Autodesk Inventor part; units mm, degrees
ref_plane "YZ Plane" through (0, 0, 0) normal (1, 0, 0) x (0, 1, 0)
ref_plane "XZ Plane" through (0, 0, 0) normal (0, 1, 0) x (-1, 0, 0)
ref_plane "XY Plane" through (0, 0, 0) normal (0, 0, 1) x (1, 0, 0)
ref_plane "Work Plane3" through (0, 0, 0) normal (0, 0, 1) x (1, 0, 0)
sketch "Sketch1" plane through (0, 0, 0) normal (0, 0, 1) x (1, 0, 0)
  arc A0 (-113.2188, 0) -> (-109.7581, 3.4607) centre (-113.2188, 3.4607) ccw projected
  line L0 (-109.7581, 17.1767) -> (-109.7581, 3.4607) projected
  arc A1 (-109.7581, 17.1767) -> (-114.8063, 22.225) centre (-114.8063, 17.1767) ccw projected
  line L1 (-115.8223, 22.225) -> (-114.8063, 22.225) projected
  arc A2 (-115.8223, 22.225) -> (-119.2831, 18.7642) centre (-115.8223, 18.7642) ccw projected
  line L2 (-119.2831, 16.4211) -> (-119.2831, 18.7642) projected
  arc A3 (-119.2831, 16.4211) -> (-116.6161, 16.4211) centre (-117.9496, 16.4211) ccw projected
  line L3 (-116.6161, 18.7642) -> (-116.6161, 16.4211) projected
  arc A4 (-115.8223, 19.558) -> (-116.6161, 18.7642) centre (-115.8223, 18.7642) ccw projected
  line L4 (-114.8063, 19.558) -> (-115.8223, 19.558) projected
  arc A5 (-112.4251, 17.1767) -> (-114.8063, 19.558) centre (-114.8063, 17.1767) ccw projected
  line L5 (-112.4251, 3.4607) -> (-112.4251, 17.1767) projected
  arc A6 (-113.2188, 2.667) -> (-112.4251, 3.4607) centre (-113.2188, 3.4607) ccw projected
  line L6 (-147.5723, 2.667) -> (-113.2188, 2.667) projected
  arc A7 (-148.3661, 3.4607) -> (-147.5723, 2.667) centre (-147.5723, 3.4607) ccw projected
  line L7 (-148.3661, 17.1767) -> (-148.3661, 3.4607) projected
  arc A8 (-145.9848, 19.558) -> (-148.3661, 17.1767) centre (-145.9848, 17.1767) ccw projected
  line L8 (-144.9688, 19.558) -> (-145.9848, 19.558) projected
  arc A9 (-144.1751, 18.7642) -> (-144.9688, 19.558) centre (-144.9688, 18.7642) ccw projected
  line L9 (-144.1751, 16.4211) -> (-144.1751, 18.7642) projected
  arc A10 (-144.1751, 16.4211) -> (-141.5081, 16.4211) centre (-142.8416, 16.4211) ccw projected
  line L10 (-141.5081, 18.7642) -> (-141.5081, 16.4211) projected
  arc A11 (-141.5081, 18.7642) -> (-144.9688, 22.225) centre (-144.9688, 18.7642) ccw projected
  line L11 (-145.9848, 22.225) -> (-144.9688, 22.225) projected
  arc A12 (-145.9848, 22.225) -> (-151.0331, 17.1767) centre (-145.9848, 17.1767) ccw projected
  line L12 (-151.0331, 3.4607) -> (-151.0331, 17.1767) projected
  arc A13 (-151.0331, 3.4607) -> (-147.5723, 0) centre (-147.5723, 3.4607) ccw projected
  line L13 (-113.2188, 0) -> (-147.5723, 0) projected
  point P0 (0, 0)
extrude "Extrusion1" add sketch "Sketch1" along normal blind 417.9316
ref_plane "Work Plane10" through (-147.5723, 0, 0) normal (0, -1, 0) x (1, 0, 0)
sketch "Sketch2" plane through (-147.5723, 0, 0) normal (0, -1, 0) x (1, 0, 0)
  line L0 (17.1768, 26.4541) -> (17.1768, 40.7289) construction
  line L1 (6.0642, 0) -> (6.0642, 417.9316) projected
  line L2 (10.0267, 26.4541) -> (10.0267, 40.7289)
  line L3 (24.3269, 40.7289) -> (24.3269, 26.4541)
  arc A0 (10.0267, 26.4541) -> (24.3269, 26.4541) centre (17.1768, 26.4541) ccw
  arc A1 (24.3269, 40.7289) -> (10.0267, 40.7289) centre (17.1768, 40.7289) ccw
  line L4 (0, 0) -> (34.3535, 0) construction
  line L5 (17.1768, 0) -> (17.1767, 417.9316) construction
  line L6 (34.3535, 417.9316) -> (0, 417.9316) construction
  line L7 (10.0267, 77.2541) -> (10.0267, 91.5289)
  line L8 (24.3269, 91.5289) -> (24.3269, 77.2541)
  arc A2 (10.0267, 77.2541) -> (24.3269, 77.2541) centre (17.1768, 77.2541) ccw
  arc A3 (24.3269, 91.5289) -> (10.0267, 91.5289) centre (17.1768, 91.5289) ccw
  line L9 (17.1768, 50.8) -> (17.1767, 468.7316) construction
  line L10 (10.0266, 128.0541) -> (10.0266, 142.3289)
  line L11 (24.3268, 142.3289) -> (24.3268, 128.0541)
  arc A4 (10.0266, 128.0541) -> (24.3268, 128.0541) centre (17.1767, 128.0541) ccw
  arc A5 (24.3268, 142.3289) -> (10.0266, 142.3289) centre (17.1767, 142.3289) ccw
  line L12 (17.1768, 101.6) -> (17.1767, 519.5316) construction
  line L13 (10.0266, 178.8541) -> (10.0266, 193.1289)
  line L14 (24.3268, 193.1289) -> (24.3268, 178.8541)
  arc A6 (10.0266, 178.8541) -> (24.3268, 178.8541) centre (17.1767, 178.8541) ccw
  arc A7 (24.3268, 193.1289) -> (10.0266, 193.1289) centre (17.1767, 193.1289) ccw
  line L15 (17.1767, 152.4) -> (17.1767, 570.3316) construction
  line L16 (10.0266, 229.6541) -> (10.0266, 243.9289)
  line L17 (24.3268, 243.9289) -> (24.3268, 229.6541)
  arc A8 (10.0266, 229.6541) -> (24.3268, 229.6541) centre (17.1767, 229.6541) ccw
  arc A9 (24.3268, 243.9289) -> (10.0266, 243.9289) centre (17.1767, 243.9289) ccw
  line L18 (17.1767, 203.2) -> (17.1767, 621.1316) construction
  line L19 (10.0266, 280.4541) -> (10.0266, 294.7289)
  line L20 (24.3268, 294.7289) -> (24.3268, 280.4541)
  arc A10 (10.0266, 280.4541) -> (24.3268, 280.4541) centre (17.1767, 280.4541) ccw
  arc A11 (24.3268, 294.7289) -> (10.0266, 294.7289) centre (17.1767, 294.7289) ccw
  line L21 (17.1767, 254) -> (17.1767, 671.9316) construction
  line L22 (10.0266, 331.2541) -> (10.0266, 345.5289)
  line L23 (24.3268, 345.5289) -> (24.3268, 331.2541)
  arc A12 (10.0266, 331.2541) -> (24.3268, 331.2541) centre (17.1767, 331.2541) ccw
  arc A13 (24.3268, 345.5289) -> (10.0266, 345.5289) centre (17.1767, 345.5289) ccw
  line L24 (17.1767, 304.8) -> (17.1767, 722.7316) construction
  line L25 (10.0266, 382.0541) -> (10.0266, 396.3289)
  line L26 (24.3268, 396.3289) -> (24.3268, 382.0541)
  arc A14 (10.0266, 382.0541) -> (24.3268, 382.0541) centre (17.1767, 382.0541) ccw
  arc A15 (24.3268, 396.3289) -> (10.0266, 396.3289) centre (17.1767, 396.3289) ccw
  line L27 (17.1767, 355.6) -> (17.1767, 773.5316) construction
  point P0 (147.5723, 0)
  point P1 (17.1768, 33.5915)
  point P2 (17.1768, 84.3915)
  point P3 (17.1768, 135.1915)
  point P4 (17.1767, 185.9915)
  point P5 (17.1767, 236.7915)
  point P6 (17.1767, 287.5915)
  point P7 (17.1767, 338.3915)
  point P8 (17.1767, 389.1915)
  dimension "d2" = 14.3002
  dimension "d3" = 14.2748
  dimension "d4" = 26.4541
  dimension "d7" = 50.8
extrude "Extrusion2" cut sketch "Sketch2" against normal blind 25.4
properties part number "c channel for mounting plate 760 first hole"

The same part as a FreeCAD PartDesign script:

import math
import FreeCAD as App
import Part
import Sketcher
from FreeCAD import Vector
Q = App.Units.Quantity

doc = App.newDocument("Part")
params = doc.addObject("Spreadsheet::Sheet", "Params")
for row, (alias, value) in enumerate([
    ("sketch1_radius", "0.031252 in"),
    ("sketch1_radius2", "0.093748 in"),
    ("sketch1_width", "0.04 in"),
    ("sketch1_height", "0.54 in"),
    ("pad1_length", "16.454 in"),
    ("sketch2_height", "0.562 in"),
    ("pocket1_length", "1 in"),
], start=1):
    params.set(f"A{row}", alias)
    params.set(f"B{row}", "=" + value)
    params.setAlias(f"B{row}", alias)

body = doc.addObject("PartDesign::Body", "Body")

# Sketch on XY plane
sketch1 = body.newObject("Sketcher::SketchObject", "Sketch")
sketch1.AttachmentSupport = (doc.getObject("XY_Plane"), [""])
sketch1.MapMode = "FlatFace"
sketch1.addGeometry([
    Part.LineSegment(Vector(-147.5723, 0, 0), Vector(-113.2188, 0, 0)),  # 0
    Part.ArcOfCircle(Part.Circle(Vector(-113.2188, 3.4607, 0), Vector(0, 0, 1), 3.4607), math.radians(-90), math.radians(0)),  # 1
    Part.LineSegment(Vector(-109.7581, 3.4607, 0), Vector(-109.7581, 17.1767, 0)),  # 2
    Part.ArcOfCircle(Part.Circle(Vector(-114.8063, 17.1767, 0), Vector(0, 0, 1), 5.0482), math.radians(0), math.radians(90)),  # 3
    Part.LineSegment(Vector(-114.8063, 22.225, 0), Vector(-115.8223, 22.225, 0)),  # 4
    Part.ArcOfCircle(Part.Circle(Vector(-115.8223, 18.7642, 0), Vector(0, 0, 1), 3.4608), math.radians(90), math.radians(180)),  # 5
    Part.LineSegment(Vector(-119.2831, 18.7642, 0), Vector(-119.2831, 16.4211, 0)),  # 6
    Part.ArcOfCircle(Part.Circle(Vector(-117.9496, 16.4211, 0), Vector(0, 0, 1), 1.3335), math.radians(180), math.radians(360)),  # 7
    Part.LineSegment(Vector(-116.6161, 16.4211, 0), Vector(-116.6161, 18.7642, 0)),  # 8
    Part.ArcOfCircle(Part.Circle(Vector(-115.8223, 18.7642, 0), Vector(0, 0, 1), 0.7938), math.radians(90), math.radians(180)),  # 9
    Part.LineSegment(Vector(-115.8223, 19.558, 0), Vector(-114.8063, 19.558, 0)),  # 10
    Part.ArcOfCircle(Part.Circle(Vector(-114.8063, 17.1767, 0), Vector(0, 0, 1), 2.3812), math.radians(0), math.radians(90)),  # 11
    Part.LineSegment(Vector(-112.4251, 17.1767, 0), Vector(-112.4251, 3.4607, 0)),  # 12
    Part.ArcOfCircle(Part.Circle(Vector(-113.2188, 3.4607, 0), Vector(0, 0, 1), 0.7937), math.radians(-90), math.radians(0)),  # 13
    Part.LineSegment(Vector(-113.2188, 2.667, 0), Vector(-147.5723, 2.667, 0)),  # 14
    Part.ArcOfCircle(Part.Circle(Vector(-147.5723, 3.4607, 0), Vector(0, 0, 1), 0.7938), math.radians(180), math.radians(270)),  # 15
    Part.LineSegment(Vector(-148.3661, 3.4607, 0), Vector(-148.3661, 17.1767, 0)),  # 16
    Part.ArcOfCircle(Part.Circle(Vector(-145.9848, 17.1767, 0), Vector(0, 0, 1), 2.3813), math.radians(90), math.radians(180)),  # 17
    Part.LineSegment(Vector(-145.9848, 19.558, 0), Vector(-144.9688, 19.558, 0)),  # 18
    Part.ArcOfCircle(Part.Circle(Vector(-144.9688, 18.7642, 0), Vector(0, 0, 1), 0.7937), math.radians(0), math.radians(90)),  # 19
    Part.LineSegment(Vector(-144.1751, 18.7642, 0), Vector(-144.1751, 16.4211, 0)),  # 20
    Part.ArcOfCircle(Part.Circle(Vector(-142.8416, 16.4211, 0), Vector(0, 0, 1), 1.3335), math.radians(180), math.radians(360)),  # 21
    Part.LineSegment(Vector(-141.5081, 16.4211, 0), Vector(-141.5081, 18.7642, 0)),  # 22
    Part.ArcOfCircle(Part.Circle(Vector(-144.9688, 18.7642, 0), Vector(0, 0, 1), 3.4607), math.radians(0), math.radians(90)),  # 23
    Part.LineSegment(Vector(-144.9688, 22.225, 0), Vector(-145.9848, 22.225, 0)),  # 24
    Part.ArcOfCircle(Part.Circle(Vector(-145.9848, 17.1767, 0), Vector(0, 0, 1), 5.0483), math.radians(90), math.radians(180)),  # 25
    Part.LineSegment(Vector(-151.0331, 17.1767, 0), Vector(-151.0331, 3.4607, 0)),  # 26
    Part.ArcOfCircle(Part.Circle(Vector(-147.5723, 3.4607, 0), Vector(0, 0, 1), 3.4608), math.radians(180), math.radians(270)),  # 27
], False)
sketch1.addConstraint([
    Sketcher.Constraint("Tangent", 0, 2, 1, 1),
    Sketcher.Constraint("Tangent", 1, 2, 2, 1),
    Sketcher.Constraint("Tangent", 2, 2, 3, 1),
    Sketcher.Constraint("Tangent", 3, 2, 4, 1),
    Sketcher.Constraint("Tangent", 4, 2, 5, 1),
    Sketcher.Constraint("Tangent", 5, 2, 6, 1),
    Sketcher.Constraint("Tangent", 6, 2, 7, 1),
    Sketcher.Constraint("Tangent", 7, 2, 8, 1),
    Sketcher.Constraint("Tangent", 8, 2, 9, 2),
    Sketcher.Constraint("Tangent", 9, 1, 10, 1),
    Sketcher.Constraint("Tangent", 10, 2, 11, 2),
    Sketcher.Constraint("Tangent", 11, 1, 12, 1),
    Sketcher.Constraint("Tangent", 12, 2, 13, 2),
    Sketcher.Constraint("Tangent", 13, 1, 14, 1),
    Sketcher.Constraint("Tangent", 14, 2, 15, 2),
    Sketcher.Constraint("Tangent", 15, 1, 16, 1),
    Sketcher.Constraint("Tangent", 16, 2, 17, 2),
    Sketcher.Constraint("Tangent", 17, 1, 18, 1),
    Sketcher.Constraint("Tangent", 18, 2, 19, 2),
    Sketcher.Constraint("Tangent", 19, 1, 20, 1),
    Sketcher.Constraint("Tangent", 20, 2, 21, 1),
    Sketcher.Constraint("Tangent", 21, 2, 22, 1),
    Sketcher.Constraint("Tangent", 22, 2, 23, 1),
    Sketcher.Constraint("Tangent", 23, 2, 24, 1),
    Sketcher.Constraint("Tangent", 24, 2, 25, 1),
    Sketcher.Constraint("Tangent", 25, 2, 26, 1),
    Sketcher.Constraint("Tangent", 26, 2, 27, 1),
    Sketcher.Constraint("Tangent", 27, 2, 0, 1),
    Sketcher.Constraint("Horizontal", 0),
    Sketcher.Constraint("Vertical", 2),
    Sketcher.Constraint("Horizontal", 4),
    Sketcher.Constraint("Vertical", 6),
    Sketcher.Constraint("Vertical", 8),
    Sketcher.Constraint("Horizontal", 10),
    Sketcher.Constraint("Vertical", 12),
    Sketcher.Constraint("Horizontal", 14),
    Sketcher.Constraint("Vertical", 16),
    Sketcher.Constraint("Horizontal", 18),
    Sketcher.Constraint("Vertical", 20),
    Sketcher.Constraint("Vertical", 22),
    Sketcher.Constraint("Horizontal", 24),
    Sketcher.Constraint("Vertical", 26),
    Sketcher.Constraint("Coincident", 9, 3, 5, 3),
    Sketcher.Constraint("Coincident", 11, 3, 3, 3),
    Sketcher.Constraint("Coincident", 13, 3, 1, 3),
    Sketcher.Constraint("Coincident", 23, 3, 19, 3),
    Sketcher.Constraint("Coincident", 25, 3, 17, 3),
    Sketcher.Constraint("Coincident", 27, 3, 15, 3),
    Sketcher.Constraint("Equal", 1, 5),
    Sketcher.Constraint("Equal", 13, 15),
    Sketcher.Constraint("Equal", 11, 17),
    Sketcher.Constraint("Equal", 15, 19),
    Sketcher.Constraint("PointOnObject", 0, 2, -1),
    Sketcher.Constraint("Horizontal", 11, 3, 17, 3),
    Sketcher.Constraint("Horizontal", 7, 3, 21, 3),
    Sketcher.Constraint("Equal", 10, 18),
    Sketcher.Constraint("Radius", 9, Q("0.031252 in")),
    Sketcher.Constraint("Radius", 11, Q("0.093748 in")),
    Sketcher.Constraint("DistanceX", 4, 2, 4, 1, Q("0.04 in")),
    Sketcher.Constraint("DistanceY", 2, 1, 2, 2, Q("0.54 in")),
    Sketcher.Constraint("Radius", 7, Q("0.0525 in")),
    Sketcher.Constraint("DistanceX", 15, 3, 5, 3, Q("1.25 in")),
    Sketcher.Constraint("DistanceY", 6, 2, 6, 1, Q("2.343 mm")),
    Sketcher.Constraint("DistanceX", 1, 3, -1, 1, Q("113.2188 mm")),
])
sketch1.setExpression("Constraints[56]", "Params.sketch1_radius")
sketch1.setExpression("Constraints[57]", "Params.sketch1_radius2")
sketch1.setExpression("Constraints[58]", "Params.sketch1_width")
sketch1.setExpression("Constraints[59]", "Params.sketch1_height")
pad1 = body.newObject("PartDesign::Pad", "Pad")
pad1.Profile = sketch1
pad1.setExpression("Length", "Params.pad1_length")

# Sketch on XZ plane
sketch2 = body.newObject("Sketcher::SketchObject", "Sketch001")
sketch2.AttachmentSupport = (doc.getObject("XZ_Plane"), [""])
sketch2.MapMode = "FlatFace"
sketch2.addGeometry([
    Part.LineSegment(Vector(-137.5456, 40.7289, 0), Vector(-137.5456, 26.4541, 0)),  # 0
    Part.ArcOfCircle(Part.Circle(Vector(-130.3955, 26.4541, 0), Vector(0, 0, 1), 7.1501), math.radians(180), math.radians(360)),  # 1
    Part.LineSegment(Vector(-123.2454, 26.4541, 0), Vector(-123.2454, 40.7289, 0)),  # 2
    Part.ArcOfCircle(Part.Circle(Vector(-130.3955, 40.7289, 0), Vector(0, 0, 1), 7.1501), math.radians(0), math.radians(180)),  # 3
    Part.LineSegment(Vector(-137.5456, 91.5289, 0), Vector(-137.5456, 77.2541, 0)),  # 4
    Part.ArcOfCircle(Part.Circle(Vector(-130.3955, 77.2541, 0), Vector(0, 0, 1), 7.1501), math.radians(180), math.radians(360)),  # 5
    Part.LineSegment(Vector(-123.2454, 77.2541, 0), Vector(-123.2454, 91.5289, 0)),  # 6
    Part.ArcOfCircle(Part.Circle(Vector(-130.3955, 91.5289, 0), Vector(0, 0, 1), 7.1501), math.radians(0), math.radians(180)),  # 7
    Part.LineSegment(Vector(-137.5457, 142.3289, 0), Vector(-137.5457, 128.0541, 0)),  # 8
    Part.ArcOfCircle(Part.Circle(Vector(-130.3956, 128.0541, 0), Vector(0, 0, 1), 7.1501), math.radians(180), math.radians(360)),  # 9
    Part.LineSegment(Vector(-123.2455, 128.0541, 0), Vector(-123.2455, 142.3289, 0)),  # 10
    Part.ArcOfCircle(Part.Circle(Vector(-130.3956, 142.3289, 0), Vector(0, 0, 1), 7.1501), math.radians(0), math.radians(180)),  # 11
    Part.LineSegment(Vector(-137.5457, 193.1289, 0), Vector(-137.5457, 178.8541, 0)),  # 12
    Part.ArcOfCircle(Part.Circle(Vector(-130.3956, 178.8541, 0), Vector(0, 0, 1), 7.1501), math.radians(180), math.radians(360)),  # 13
    Part.LineSegment(Vector(-123.2455, 178.8541, 0), Vector(-123.2455, 193.1289, 0)),  # 14
    Part.ArcOfCircle(Part.Circle(Vector(-130.3956, 193.1289, 0), Vector(0, 0, 1), 7.1501), math.radians(0), math.radians(180)),  # 15
    Part.LineSegment(Vector(-137.5457, 243.9289, 0), Vector(-137.5457, 229.6541, 0)),  # 16
    Part.ArcOfCircle(Part.Circle(Vector(-130.3956, 229.6541, 0), Vector(0, 0, 1), 7.1501), math.radians(180), math.radians(360)),  # 17
    Part.LineSegment(Vector(-123.2455, 229.6541, 0), Vector(-123.2455, 243.9289, 0)),  # 18
    Part.ArcOfCircle(Part.Circle(Vector(-130.3956, 243.9289, 0), Vector(0, 0, 1), 7.1501), math.radians(0), math.radians(180)),  # 19
    Part.LineSegment(Vector(-137.5457, 294.7289, 0), Vector(-137.5457, 280.4541, 0)),  # 20
    Part.ArcOfCircle(Part.Circle(Vector(-130.3956, 280.4541, 0), Vector(0, 0, 1), 7.1501), math.radians(180), math.radians(360)),  # 21
    Part.LineSegment(Vector(-123.2455, 280.4541, 0), Vector(-123.2455, 294.7289, 0)),  # 22
    Part.ArcOfCircle(Part.Circle(Vector(-130.3956, 294.7289, 0), Vector(0, 0, 1), 7.1501), math.radians(0), math.radians(180)),  # 23
    Part.LineSegment(Vector(-137.5457, 345.5289, 0), Vector(-137.5457, 331.2541, 0)),  # 24
    Part.ArcOfCircle(Part.Circle(Vector(-130.3956, 331.2541, 0), Vector(0, 0, 1), 7.1501), math.radians(180), math.radians(360)),  # 25
    Part.LineSegment(Vector(-123.2455, 331.2541, 0), Vector(-123.2455, 345.5289, 0)),  # 26
    Part.ArcOfCircle(Part.Circle(Vector(-130.3956, 345.5289, 0), Vector(0, 0, 1), 7.1501), math.radians(0), math.radians(180)),  # 27
    Part.LineSegment(Vector(-137.5457, 396.3289, 0), Vector(-137.5457, 382.0541, 0)),  # 28
    Part.ArcOfCircle(Part.Circle(Vector(-130.3956, 382.0541, 0), Vector(0, 0, 1), 7.1501), math.radians(180), math.radians(360)),  # 29
    Part.LineSegment(Vector(-123.2455, 382.0541, 0), Vector(-123.2455, 396.3289, 0)),  # 30
    Part.ArcOfCircle(Part.Circle(Vector(-130.3956, 396.3289, 0), Vector(0, 0, 1), 7.1501), math.radians(0), math.radians(180)),  # 31
], False)
sketch2.addConstraint([
    Sketcher.Constraint("Tangent", 0, 2, 1, 1),
    Sketcher.Constraint("Tangent", 1, 2, 2, 1),
    Sketcher.Constraint("Tangent", 2, 2, 3, 1),
    Sketcher.Constraint("Tangent", 3, 2, 0, 1),
    Sketcher.Constraint("Tangent", 4, 2, 5, 1),
    Sketcher.Constraint("Tangent", 5, 2, 6, 1),
    Sketcher.Constraint("Tangent", 6, 2, 7, 1),
    Sketcher.Constraint("Tangent", 7, 2, 4, 1),
    Sketcher.Constraint("Tangent", 8, 2, 9, 1),
    Sketcher.Constraint("Tangent", 9, 2, 10, 1),
    Sketcher.Constraint("Tangent", 10, 2, 11, 1),
    Sketcher.Constraint("Tangent", 11, 2, 8, 1),
    Sketcher.Constraint("Tangent", 12, 2, 13, 1),
    Sketcher.Constraint("Tangent", 13, 2, 14, 1),
    Sketcher.Constraint("Tangent", 14, 2, 15, 1),
    Sketcher.Constraint("Tangent", 15, 2, 12, 1),
    Sketcher.Constraint("Tangent", 16, 2, 17, 1),
    Sketcher.Constraint("Tangent", 17, 2, 18, 1),
    Sketcher.Constraint("Tangent", 18, 2, 19, 1),
    Sketcher.Constraint("Tangent", 19, 2, 16, 1),
    Sketcher.Constraint("Tangent", 20, 2, 21, 1),
    Sketcher.Constraint("Tangent", 21, 2, 22, 1),
    Sketcher.Constraint("Tangent", 22, 2, 23, 1),
    Sketcher.Constraint("Tangent", 23, 2, 20, 1),
    Sketcher.Constraint("Tangent", 24, 2, 25, 1),
    Sketcher.Constraint("Tangent", 25, 2, 26, 1),
    Sketcher.Constraint("Tangent", 26, 2, 27, 1),
    Sketcher.Constraint("Tangent", 27, 2, 24, 1),
    Sketcher.Constraint("Tangent", 28, 2, 29, 1),
    Sketcher.Constraint("Tangent", 29, 2, 30, 1),
    Sketcher.Constraint("Tangent", 30, 2, 31, 1),
    Sketcher.Constraint("Tangent", 31, 2, 28, 1),
    Sketcher.Constraint("Vertical", 0),
    Sketcher.Constraint("Vertical", 2),
    Sketcher.Constraint("Vertical", 4),
    Sketcher.Constraint("Vertical", 6),
    Sketcher.Constraint("Vertical", 8),
    Sketcher.Constraint("Vertical", 10),
    Sketcher.Constraint("Vertical", 12),
    Sketcher.Constraint("Vertical", 14),
    Sketcher.Constraint("Vertical", 16),
    Sketcher.Constraint("Vertical", 18),
    Sketcher.Constraint("Vertical", 20),
    Sketcher.Constraint("Vertical", 22),
    Sketcher.Constraint("Vertical", 24),
    Sketcher.Constraint("Vertical", 26),
    Sketcher.Constraint("Vertical", 28),
    Sketcher.Constraint("Vertical", 30),
    Sketcher.Constraint("Equal", 3, 5),
    Sketcher.Constraint("Equal", 7, 9),
    Sketcher.Constraint("Equal", 11, 13),
    Sketcher.Constraint("Equal", 15, 17),
    Sketcher.Constraint("Equal", 19, 21),
    Sketcher.Constraint("Equal", 23, 25),
    Sketcher.Constraint("Equal", 27, 29),
    Sketcher.Constraint("Vertical", 3, 3, 5, 3),
    Sketcher.Constraint("Vertical", 7, 3, 9, 3),
    Sketcher.Constraint("Vertical", 11, 3, 13, 3),
    Sketcher.Constraint("Vertical", 15, 3, 17, 3),
    Sketcher.Constraint("Vertical", 19, 3, 21, 3),
    Sketcher.Constraint("Vertical", 23, 3, 25, 3),
    Sketcher.Constraint("Vertical", 27, 3, 29, 3),
    Sketcher.Constraint("Equal", 2, 4),
    Sketcher.Constraint("Equal", 6, 8),
    Sketcher.Constraint("Equal", 10, 12),
    Sketcher.Constraint("Equal", 14, 16),
    Sketcher.Constraint("Equal", 18, 20),
    Sketcher.Constraint("Equal", 22, 24),
    Sketcher.Constraint("Equal", 26, 28),
    Sketcher.Constraint("DistanceY", 1, 3, 5, 3, Q("2 in")),
    Sketcher.Constraint("DistanceY", 5, 3, 9, 3, Q("2 in")),
    Sketcher.Constraint("DistanceY", 9, 3, 13, 3, Q("2 in")),
    Sketcher.Constraint("DistanceY", 13, 3, 17, 3, Q("2 in")),
    Sketcher.Constraint("DistanceY", 17, 3, 21, 3, Q("2 in")),
    Sketcher.Constraint("DistanceY", 21, 3, 25, 3, Q("2 in")),
    Sketcher.Constraint("DistanceY", 25, 3, 29, 3, Q("2 in")),
    Sketcher.Constraint("Radius", 1, Q("0.2815 in")),
    Sketcher.Constraint("DistanceY", 0, 2, 0, 1, Q("0.562 in")),
    Sketcher.Constraint("DistanceY", -1, 1, 1, 3, Q("1.0415 in")),
    Sketcher.Constraint("DistanceX", 1, 3, -1, 1, Q("130.3955 mm")),
])
sketch2.setExpression("Constraints[77]", "Params.sketch2_height")
pocket1 = body.newObject("PartDesign::Pocket", "Pocket")
pocket1.Profile = sketch2
pocket1.setExpression("Length", "Params.pocket1_length")

doc.recompute()
